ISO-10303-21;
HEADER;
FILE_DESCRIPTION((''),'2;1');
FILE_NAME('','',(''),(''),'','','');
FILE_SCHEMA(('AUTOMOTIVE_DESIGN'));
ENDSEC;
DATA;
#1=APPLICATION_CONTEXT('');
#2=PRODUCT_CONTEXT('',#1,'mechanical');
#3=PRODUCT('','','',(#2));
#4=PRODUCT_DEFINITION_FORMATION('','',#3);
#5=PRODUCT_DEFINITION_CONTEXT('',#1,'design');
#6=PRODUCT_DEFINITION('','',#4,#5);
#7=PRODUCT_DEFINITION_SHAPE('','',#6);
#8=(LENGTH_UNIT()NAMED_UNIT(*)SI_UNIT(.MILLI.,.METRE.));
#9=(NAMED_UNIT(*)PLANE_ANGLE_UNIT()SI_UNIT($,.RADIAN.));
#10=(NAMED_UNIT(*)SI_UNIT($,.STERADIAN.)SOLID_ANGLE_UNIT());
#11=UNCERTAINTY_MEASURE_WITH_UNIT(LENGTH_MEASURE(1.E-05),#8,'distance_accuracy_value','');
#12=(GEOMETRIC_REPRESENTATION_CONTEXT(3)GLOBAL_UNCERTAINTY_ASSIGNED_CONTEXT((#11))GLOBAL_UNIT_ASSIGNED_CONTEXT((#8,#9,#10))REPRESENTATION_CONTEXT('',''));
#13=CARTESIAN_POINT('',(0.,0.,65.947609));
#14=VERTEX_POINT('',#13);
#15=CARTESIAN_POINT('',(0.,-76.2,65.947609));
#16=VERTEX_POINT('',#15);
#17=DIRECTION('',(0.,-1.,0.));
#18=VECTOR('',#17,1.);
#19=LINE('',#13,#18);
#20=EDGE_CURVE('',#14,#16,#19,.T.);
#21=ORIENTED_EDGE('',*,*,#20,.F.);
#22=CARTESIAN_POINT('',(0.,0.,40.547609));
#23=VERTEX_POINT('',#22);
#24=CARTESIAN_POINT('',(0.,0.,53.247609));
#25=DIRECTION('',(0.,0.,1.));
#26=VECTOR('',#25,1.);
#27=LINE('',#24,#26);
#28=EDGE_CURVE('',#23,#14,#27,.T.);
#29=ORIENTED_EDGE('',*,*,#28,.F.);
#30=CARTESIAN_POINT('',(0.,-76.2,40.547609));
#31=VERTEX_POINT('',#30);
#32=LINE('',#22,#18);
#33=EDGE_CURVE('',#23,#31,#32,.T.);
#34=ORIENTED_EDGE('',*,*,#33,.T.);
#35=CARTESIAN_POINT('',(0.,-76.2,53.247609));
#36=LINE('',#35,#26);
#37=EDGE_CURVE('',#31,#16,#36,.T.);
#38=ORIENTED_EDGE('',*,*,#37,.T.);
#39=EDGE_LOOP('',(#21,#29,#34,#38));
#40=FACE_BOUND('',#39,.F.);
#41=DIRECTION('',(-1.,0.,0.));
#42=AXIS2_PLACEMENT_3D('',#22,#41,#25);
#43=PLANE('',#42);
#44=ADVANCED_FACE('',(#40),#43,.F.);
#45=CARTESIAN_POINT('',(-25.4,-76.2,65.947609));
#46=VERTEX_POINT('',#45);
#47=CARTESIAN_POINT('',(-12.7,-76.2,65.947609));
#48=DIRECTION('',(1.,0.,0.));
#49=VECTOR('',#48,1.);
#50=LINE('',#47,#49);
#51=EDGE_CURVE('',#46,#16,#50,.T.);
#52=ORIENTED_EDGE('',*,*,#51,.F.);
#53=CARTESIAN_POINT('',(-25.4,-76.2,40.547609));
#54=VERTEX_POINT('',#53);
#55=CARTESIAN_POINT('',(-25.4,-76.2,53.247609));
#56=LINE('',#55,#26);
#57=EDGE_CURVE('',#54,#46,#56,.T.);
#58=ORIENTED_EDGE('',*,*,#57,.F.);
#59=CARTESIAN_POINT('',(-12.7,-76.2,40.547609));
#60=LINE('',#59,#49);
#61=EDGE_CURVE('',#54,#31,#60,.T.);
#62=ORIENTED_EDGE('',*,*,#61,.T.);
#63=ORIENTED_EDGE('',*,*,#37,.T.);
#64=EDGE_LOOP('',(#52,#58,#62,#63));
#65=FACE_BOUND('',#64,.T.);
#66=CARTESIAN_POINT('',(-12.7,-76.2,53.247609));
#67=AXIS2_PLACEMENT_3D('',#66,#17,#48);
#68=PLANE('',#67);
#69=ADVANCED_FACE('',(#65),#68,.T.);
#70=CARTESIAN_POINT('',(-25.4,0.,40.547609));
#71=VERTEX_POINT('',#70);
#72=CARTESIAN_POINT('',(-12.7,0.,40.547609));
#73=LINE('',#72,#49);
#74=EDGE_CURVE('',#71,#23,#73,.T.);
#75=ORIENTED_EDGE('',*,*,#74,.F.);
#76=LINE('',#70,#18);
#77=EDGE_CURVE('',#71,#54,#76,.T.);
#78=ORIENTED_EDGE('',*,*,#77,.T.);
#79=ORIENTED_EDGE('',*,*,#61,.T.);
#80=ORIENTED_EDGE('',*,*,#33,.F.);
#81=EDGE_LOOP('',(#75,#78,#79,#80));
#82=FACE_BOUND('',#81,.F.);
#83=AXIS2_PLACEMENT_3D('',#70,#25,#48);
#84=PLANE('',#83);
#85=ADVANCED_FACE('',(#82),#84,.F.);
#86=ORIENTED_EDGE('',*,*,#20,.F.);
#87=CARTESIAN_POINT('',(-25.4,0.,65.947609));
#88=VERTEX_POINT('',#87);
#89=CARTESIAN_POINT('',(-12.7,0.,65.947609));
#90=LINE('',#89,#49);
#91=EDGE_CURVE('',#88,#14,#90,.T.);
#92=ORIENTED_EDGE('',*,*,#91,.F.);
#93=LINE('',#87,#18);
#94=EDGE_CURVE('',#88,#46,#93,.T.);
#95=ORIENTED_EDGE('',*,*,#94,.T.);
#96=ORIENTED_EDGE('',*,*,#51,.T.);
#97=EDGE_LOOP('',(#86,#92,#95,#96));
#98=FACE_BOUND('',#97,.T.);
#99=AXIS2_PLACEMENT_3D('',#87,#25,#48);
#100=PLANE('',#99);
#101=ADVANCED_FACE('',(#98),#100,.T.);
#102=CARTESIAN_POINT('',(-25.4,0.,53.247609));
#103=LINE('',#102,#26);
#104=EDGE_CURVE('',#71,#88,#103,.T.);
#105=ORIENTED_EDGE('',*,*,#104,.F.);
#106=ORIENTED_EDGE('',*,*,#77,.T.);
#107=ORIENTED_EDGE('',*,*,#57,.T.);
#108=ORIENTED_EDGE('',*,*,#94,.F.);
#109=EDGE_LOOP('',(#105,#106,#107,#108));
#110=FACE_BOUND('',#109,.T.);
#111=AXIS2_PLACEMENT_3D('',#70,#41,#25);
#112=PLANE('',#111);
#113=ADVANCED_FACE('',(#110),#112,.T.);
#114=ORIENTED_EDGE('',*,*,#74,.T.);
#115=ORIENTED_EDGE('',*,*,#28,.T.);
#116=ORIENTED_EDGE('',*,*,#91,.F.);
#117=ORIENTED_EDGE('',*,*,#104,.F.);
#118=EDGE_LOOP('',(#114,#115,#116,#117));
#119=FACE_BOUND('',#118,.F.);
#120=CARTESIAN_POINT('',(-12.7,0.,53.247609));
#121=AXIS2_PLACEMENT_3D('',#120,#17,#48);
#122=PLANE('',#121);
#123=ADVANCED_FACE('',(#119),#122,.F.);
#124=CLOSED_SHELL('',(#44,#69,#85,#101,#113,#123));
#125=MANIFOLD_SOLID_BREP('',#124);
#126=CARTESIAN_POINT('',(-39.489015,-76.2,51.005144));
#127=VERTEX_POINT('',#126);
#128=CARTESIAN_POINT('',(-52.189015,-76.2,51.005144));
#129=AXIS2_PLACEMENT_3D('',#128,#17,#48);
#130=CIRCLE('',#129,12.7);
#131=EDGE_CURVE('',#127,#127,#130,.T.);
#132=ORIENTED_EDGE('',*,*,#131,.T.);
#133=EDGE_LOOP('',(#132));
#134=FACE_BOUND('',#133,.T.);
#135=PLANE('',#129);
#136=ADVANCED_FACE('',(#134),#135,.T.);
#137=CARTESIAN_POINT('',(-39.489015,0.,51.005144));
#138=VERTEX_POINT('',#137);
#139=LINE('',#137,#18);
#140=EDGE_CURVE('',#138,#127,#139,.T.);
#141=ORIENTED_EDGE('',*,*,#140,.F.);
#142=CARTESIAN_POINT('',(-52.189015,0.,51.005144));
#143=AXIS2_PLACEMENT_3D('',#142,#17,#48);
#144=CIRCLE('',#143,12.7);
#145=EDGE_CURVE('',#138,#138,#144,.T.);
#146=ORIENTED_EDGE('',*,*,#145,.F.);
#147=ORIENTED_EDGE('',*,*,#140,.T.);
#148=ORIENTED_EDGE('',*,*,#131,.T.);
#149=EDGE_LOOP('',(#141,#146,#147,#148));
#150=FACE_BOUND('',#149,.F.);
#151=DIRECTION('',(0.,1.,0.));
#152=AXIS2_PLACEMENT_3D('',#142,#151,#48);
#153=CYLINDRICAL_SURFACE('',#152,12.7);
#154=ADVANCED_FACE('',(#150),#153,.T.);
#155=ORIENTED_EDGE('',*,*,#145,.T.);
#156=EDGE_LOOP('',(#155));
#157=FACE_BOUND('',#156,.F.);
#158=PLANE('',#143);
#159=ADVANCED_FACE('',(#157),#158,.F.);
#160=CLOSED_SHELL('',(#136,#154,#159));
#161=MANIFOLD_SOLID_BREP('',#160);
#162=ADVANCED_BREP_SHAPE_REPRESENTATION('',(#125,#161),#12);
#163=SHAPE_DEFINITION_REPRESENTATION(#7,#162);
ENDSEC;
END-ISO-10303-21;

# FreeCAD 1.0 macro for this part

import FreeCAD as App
import Part
import Sketcher

V = App.Vector
Q = App.Units.Quantity

doc = App.newDocument("Part")
body = doc.addObject("PartDesign::Body", "Body")

# Sketch on XZ plane
sketch1 = body.newObject("Sketcher::SketchObject", "Sketch")
sketch1.AttachmentSupport = (doc.getObject("XZ_Plane"), [""])
sketch1.MapMode = "FlatFace"
sketch1.addGeometry(Part.Circle(V(-52, 51, 0), V(0, 0, 1), 13), False)
sketch1.addConstraint(Sketcher.Constraint("Diameter", 0, Q("1 in")))
sketch1.addConstraint(Sketcher.Constraint("DistanceX", 0, 3, -1, 1, 52.189015))
sketch1.addConstraint(Sketcher.Constraint("DistanceY", -1, 1, 0, 3, 51.005144))
pad1 = body.newObject("PartDesign::Pad", "Pad")
pad1.Profile = sketch1
pad1.Length = Q("3 in")
body2 = doc.addObject("PartDesign::Body", "Body001")

# Sketch on XZ plane
sketch2 = body2.newObject("Sketcher::SketchObject", "Sketch001")
sketch2.AttachmentSupport = (doc.getObject("XZ_Plane001"), [""])
sketch2.MapMode = "FlatFace"
sketch2.addGeometry(Part.LineSegment(V(-25, 66, 0), V(-25, 41, 0)), False)
sketch2.addGeometry(Part.LineSegment(V(-25, 41, 0), V(0, 41, 0)), False)
sketch2.addGeometry(Part.LineSegment(V(0, 41, 0), V(0, 66, 0)), False)
sketch2.addGeometry(Part.LineSegment(V(0, 66, 0), V(-25, 66, 0)), False)
sketch2.addConstraint(Sketcher.Constraint("Coincident", 0, 2, 1, 1))
sketch2.addConstraint(Sketcher.Constraint("Coincident", 1, 2, 2, 1))
sketch2.addConstraint(Sketcher.Constraint("Coincident", 2, 2, 3, 1))
sketch2.addConstraint(Sketcher.Constraint("Coincident", 3, 2, 0, 1))
sketch2.addConstraint(Sketcher.Constraint("Vertical", 0))
sketch2.addConstraint(Sketcher.Constraint("Horizontal", 1))
sketch2.addConstraint(Sketcher.Constraint("Vertical", 2))
sketch2.addConstraint(Sketcher.Constraint("Horizontal", 3))
sketch2.addConstraint(Sketcher.Constraint("PointOnObject", 1, 2, -2))
sketch2.addConstraint(Sketcher.Constraint("Equal", 3, 0))
sketch2.addConstraint(Sketcher.Constraint("DistanceX", 1, 1, 1, 2, Q("1 in")))
sketch2.addConstraint(Sketcher.Constraint("DistanceY", -1, 1, 0, 2, 40.547609))
pad2 = body2.newObject("PartDesign::Pad", "Pad001")
pad2.Profile = sketch2
pad2.Length = Q("3 in")

doc.recompute()
